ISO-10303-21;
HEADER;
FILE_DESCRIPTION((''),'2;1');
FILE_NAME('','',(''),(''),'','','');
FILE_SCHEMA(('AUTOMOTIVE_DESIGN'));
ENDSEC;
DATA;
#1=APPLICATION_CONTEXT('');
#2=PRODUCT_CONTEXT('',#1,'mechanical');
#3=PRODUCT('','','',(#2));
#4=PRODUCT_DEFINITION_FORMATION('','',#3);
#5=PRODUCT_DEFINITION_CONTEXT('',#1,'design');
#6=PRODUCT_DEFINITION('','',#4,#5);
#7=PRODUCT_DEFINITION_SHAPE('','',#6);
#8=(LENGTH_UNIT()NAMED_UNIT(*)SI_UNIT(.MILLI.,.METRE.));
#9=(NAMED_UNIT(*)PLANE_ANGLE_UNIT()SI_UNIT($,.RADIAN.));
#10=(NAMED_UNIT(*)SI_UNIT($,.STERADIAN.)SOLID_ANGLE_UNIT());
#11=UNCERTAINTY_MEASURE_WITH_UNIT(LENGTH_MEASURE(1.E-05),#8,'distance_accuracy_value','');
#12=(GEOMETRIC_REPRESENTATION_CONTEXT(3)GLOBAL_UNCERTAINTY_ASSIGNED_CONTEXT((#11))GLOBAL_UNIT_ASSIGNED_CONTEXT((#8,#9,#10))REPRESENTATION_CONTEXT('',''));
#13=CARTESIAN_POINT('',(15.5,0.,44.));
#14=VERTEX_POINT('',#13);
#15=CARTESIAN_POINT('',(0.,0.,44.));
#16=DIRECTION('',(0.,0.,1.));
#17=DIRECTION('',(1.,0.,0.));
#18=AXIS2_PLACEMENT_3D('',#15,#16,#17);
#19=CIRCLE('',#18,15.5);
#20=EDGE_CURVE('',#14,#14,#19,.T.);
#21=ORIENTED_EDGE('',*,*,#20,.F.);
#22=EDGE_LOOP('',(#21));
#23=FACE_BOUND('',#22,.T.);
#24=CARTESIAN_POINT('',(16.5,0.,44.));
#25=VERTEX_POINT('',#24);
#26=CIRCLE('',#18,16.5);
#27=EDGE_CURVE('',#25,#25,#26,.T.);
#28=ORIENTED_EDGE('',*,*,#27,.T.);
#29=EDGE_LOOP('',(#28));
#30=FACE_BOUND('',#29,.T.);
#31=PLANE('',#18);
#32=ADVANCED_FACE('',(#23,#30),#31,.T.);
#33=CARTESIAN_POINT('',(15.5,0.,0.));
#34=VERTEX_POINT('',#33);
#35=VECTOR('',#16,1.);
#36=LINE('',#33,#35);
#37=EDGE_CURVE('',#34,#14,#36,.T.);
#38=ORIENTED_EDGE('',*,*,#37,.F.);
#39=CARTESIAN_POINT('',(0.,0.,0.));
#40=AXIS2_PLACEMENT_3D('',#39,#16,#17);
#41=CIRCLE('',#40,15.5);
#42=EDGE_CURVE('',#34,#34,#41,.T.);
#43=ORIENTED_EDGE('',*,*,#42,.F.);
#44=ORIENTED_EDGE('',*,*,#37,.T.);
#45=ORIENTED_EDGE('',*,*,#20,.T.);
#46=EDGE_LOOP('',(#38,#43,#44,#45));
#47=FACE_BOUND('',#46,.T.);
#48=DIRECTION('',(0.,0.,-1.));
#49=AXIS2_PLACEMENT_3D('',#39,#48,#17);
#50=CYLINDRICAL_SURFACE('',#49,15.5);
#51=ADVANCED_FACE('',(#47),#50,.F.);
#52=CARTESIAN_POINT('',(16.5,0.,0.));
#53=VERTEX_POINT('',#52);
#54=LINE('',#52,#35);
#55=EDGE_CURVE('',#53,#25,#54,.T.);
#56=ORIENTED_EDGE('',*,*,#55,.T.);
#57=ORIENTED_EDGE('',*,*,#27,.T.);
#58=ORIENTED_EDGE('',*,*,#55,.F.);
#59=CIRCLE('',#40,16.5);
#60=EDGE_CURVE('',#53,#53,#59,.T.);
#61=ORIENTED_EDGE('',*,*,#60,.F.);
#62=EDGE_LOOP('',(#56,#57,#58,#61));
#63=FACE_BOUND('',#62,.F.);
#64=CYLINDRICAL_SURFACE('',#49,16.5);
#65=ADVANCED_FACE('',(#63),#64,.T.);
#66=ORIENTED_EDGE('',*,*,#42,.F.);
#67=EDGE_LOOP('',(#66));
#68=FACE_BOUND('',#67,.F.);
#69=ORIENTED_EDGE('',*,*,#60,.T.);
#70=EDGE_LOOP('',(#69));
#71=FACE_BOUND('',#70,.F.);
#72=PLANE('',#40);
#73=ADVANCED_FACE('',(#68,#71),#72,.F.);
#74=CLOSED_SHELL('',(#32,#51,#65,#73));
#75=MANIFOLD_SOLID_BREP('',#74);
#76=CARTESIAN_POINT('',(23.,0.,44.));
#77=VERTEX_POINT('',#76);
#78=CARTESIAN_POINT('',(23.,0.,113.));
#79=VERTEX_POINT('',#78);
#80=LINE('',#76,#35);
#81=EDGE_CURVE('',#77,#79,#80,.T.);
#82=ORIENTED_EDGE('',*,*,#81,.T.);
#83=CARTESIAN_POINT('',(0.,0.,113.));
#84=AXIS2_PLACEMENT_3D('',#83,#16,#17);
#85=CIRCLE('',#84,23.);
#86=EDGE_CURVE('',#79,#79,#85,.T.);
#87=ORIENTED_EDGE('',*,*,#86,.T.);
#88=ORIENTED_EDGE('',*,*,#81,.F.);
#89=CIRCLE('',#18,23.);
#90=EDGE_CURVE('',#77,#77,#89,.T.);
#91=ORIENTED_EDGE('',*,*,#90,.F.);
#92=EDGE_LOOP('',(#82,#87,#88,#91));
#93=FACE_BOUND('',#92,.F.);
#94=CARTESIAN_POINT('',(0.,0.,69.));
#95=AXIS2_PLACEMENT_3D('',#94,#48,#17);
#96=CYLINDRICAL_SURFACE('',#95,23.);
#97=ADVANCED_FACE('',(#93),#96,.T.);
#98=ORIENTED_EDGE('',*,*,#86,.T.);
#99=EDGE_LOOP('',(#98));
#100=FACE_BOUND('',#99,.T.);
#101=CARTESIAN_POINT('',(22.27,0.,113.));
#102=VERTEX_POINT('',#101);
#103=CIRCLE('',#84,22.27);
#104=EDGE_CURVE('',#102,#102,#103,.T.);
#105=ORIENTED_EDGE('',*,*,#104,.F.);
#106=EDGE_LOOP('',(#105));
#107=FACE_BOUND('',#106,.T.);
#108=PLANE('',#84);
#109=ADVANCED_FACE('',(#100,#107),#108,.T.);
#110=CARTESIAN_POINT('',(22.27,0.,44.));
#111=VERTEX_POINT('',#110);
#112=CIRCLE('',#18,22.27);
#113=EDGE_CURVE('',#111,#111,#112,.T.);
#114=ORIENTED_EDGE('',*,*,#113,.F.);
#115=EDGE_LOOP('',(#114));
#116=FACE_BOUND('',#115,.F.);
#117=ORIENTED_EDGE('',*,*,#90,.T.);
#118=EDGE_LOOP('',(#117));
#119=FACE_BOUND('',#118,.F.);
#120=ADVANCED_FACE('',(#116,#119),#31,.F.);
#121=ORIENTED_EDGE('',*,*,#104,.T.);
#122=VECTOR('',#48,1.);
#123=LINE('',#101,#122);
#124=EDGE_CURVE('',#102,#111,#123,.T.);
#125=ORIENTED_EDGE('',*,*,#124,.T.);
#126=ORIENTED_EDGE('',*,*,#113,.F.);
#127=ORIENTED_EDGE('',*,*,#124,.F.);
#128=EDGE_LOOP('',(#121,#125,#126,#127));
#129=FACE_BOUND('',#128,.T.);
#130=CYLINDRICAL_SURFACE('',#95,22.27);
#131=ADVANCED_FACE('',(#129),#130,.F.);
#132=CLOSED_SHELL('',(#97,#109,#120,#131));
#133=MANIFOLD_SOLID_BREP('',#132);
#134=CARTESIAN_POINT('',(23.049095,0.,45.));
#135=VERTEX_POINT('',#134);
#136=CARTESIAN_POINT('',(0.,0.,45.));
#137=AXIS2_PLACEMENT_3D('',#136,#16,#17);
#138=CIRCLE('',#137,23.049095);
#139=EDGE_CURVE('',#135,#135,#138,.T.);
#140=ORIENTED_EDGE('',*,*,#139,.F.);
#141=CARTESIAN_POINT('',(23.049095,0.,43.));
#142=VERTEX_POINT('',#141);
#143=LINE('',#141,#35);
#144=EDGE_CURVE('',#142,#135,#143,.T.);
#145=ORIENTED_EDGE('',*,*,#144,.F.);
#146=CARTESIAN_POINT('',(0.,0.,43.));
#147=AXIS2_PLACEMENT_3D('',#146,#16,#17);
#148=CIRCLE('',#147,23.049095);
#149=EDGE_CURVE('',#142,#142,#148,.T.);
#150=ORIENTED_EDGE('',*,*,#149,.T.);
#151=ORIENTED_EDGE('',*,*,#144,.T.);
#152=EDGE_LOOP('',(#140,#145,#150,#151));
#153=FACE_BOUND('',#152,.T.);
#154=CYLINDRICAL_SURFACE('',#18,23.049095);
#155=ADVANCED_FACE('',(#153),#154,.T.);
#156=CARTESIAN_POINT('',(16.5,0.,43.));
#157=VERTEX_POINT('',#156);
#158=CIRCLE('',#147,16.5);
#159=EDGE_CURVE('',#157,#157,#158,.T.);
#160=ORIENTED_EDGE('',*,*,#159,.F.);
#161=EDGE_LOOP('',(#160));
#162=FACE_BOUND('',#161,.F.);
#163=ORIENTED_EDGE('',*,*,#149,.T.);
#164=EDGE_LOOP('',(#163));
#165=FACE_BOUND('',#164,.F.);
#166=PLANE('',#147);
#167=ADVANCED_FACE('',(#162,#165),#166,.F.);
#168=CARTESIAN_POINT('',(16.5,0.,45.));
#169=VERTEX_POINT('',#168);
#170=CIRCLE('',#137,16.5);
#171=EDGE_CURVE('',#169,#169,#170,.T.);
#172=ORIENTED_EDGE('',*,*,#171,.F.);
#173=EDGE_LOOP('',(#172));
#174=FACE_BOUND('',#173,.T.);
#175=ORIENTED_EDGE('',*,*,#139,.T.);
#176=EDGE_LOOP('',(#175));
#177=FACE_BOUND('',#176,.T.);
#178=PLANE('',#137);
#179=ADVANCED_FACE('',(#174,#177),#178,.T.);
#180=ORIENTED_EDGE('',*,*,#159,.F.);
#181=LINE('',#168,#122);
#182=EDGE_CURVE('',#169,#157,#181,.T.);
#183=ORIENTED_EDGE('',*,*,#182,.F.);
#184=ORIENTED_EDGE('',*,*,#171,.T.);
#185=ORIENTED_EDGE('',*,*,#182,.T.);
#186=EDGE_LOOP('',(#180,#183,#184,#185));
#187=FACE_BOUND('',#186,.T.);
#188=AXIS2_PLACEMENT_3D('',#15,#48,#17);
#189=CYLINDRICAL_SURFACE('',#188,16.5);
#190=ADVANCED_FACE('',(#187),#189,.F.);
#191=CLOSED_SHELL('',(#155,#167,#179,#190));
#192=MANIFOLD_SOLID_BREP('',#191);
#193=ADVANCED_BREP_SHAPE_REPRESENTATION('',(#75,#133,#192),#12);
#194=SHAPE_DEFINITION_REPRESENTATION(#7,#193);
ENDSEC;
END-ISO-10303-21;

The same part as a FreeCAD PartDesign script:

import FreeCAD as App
import Part
import Sketcher

doc = App.newDocument("Part")
body = doc.addObject("PartDesign::Body", "Body")

# Sketch on XY plane
sketch1 = body.newObject("Sketcher::SketchObject", "Sketch")
sketch1.AttachmentSupport = (doc.getObject("XY_Plane"), [""])
sketch1.MapMode = "FlatFace"
sketch1.addGeometry([
    Part.Circle(App.Vector(0, 0, 0), App.Vector(0, 0, 1), 16),
    Part.Circle(App.Vector(0, 0, 0), App.Vector(0, 0, 1), 16),
], False)
sketch1.addConstraint([
    Sketcher.Constraint("Coincident", 0, 3, -1, 1),
    Sketcher.Constraint("Coincident", 1, 3, -1, 1),
    Sketcher.Constraint("Diameter", 0, 33.0),
    Sketcher.Constraint("Diameter", 1, 31.0),
])
pad1 = body.newObject("PartDesign::Pad", "Pad")
pad1.Profile = sketch1
pad1.Length = 44
body2 = doc.addObject("PartDesign::Body", "Body001")

# Sketch on XY plane
sketch2 = body2.newObject("Sketcher::SketchObject", "Sketch001")
sketch2.AttachmentSupport = (doc.getObject("XY_Plane001"), [""])
sketch2.MapMode = "FlatFace"
sketch2.AttachmentOffset = App.Placement(App.Vector(0, 0, 44), App.Rotation())
sketch2.addGeometry([
    Part.Circle(App.Vector(0, 0, 0), App.Vector(0, 0, 1), 23),
    Part.Circle(App.Vector(0, 0, 0), App.Vector(0, 0, 1), 22),
], False)
sketch2.addConstraint([
    Sketcher.Constraint("Coincident", 0, 3, -1, 1),
    Sketcher.Constraint("Coincident", 1, 3, -1, 1),
    Sketcher.Constraint("Diameter", 0, 46.0),
    Sketcher.Constraint("Diameter", 1, 44.54),
])
pad2 = body2.newObject("PartDesign::Pad", "Pad001")
pad2.Profile = sketch2
pad2.Length = 25

# Sketch on XY plane
sketch3 = body2.newObject("Sketcher::SketchObject", "Sketch002")
sketch3.AttachmentSupport = (doc.getObject("XY_Plane001"), [""])
sketch3.MapMode = "FlatFace"
sketch3.AttachmentOffset = App.Placement(App.Vector(0, 0, 69), App.Rotation())
sketch3.addGeometry([
    Part.Circle(App.Vector(0, 0, 0), App.Vector(0, 0, 1), 23),
    Part.Circle(App.Vector(0, 0, 0), App.Vector(0, 0, 1), 22),
], False)
sketch3.addConstraint([
    Sketcher.Constraint("Coincident", 0, 3, -1, 1),
    Sketcher.Constraint("Coincident", 1, 3, -1, 1),
    Sketcher.Constraint("Diameter", 0, 46.0),
    Sketcher.Constraint("Diameter", 1, 44.54),
])
pad3 = body2.newObject("PartDesign::Pad", "Pad002")
pad3.Profile = sketch3
pad3.Length = 44
body3 = doc.addObject("PartDesign::Body", "Body002")

# Sketch on XY plane
sketch4 = body3.newObject("Sketcher::SketchObject", "Sketch003")
sketch4.AttachmentSupport = (doc.getObject("XY_Plane002"), [""])
sketch4.MapMode = "FlatFace"
sketch4.AttachmentOffset = App.Placement(App.Vector(0, 0, 44), App.Rotation())
sketch4.addGeometry([
    Part.Circle(App.Vector(0, 0, 0), App.Vector(0, 0, 1), 23),
    Part.Circle(App.Vector(0, 0, 0), App.Vector(0, 0, 1), 16),
], False)
sketch4.addConstraint([
    Sketcher.Constraint("Coincident", 0, 3, -1, 1),
    Sketcher.Constraint("Coincident", 1, 3, -1, 1),
    Sketcher.Constraint("Diameter", 1, 33.0),
    Sketcher.Constraint("Diameter", 0, 46.09819),
])
pad4 = body3.newObject("PartDesign::Pad", "Pad003")
pad4.Profile = sketch4
pad4.Length = 2
pad4.Midplane = True

doc.recompute()
